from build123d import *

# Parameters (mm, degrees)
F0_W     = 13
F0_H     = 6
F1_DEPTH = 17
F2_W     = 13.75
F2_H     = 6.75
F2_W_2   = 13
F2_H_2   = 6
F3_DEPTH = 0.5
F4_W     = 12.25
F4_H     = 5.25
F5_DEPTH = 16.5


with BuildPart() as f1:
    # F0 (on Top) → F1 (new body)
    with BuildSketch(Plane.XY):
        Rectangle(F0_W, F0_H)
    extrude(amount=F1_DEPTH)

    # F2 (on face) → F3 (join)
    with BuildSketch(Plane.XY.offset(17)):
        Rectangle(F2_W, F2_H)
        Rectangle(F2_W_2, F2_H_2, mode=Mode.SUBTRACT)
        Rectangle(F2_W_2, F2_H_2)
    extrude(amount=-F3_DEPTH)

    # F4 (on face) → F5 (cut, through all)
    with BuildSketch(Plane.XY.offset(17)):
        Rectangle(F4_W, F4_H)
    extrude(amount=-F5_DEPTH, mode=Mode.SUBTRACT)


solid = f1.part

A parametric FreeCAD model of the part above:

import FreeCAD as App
import Part
import Sketcher
from FreeCAD import Vector


def add_polygon(sketch, points):
    """Adds a closed chain of lines whose ends are joined by coincident constraints."""
    first, n = sketch.GeometryCount, len(points)
    for a, b in zip(points, points[1:] + points[:1]):
        sketch.addGeometry(Part.LineSegment(App.Vector(*a, 0), App.Vector(*b, 0)), False)
    for i in range(n):
        sketch.addConstraint(Sketcher.Constraint("Coincident", first + i, 2, first + (i + 1) % n, 1))

doc = App.newDocument("Part")
body = doc.addObject("PartDesign::Body", "Body")

# Sketch on XY plane
sketch1 = doc.addObject("Sketcher::SketchObject", "Sketch")
body.addObject(sketch1)
sketch1.AttachmentSupport = (doc.XY_Plane, [""])
sketch1.MapMode = "FlatFace"
add_polygon(sketch1, [(-6, 3), (-6, -3), (6, -3), (6, 3)])  # lines 0-3
sketch1.addConstraint([
    Sketcher.Constraint("Vertical", 0),
    Sketcher.Constraint("Horizontal", 1),
    Sketcher.Constraint("Vertical", 2),
    Sketcher.Constraint("Horizontal", 3),
    Sketcher.Constraint("Symmetric", 0, 2, 2, 2, -1, 1),
    Sketcher.Constraint("DistanceX", 1, 1, 1, 2, 13.0),
    Sketcher.Constraint("DistanceY", 0, 2, 0, 1, 6.0),
])
pad1 = doc.addObject("PartDesign::Pad", "Pad")
body.addObject(pad1)
pad1.Profile = sketch1
pad1.Length = 17

# Sketch on XY plane
sketch2 = doc.addObject("Sketcher::SketchObject", "Sketch001")
body.addObject(sketch2)
sketch2.AttachmentSupport = (doc.XY_Plane, [""])
sketch2.MapMode = "FlatFace"
sketch2.AttachmentOffset = App.Placement(Vector(0, 0, 17), App.Rotation())
add_polygon(sketch2, [(-7, 3), (-7, -3), (7, -3), (7, 3)])  # lines 0-3
sketch2.addConstraint([
    Sketcher.Constraint("Vertical", 0),
    Sketcher.Constraint("Horizontal", 1),
    Sketcher.Constraint("Vertical", 2),
    Sketcher.Constraint("Horizontal", 3),
    Sketcher.Constraint("Symmetric", 0, 2, 2, 2, -1, 1),
    Sketcher.Constraint("DistanceX", 1, 1, 1, 2, 13.75),
    Sketcher.Constraint("DistanceY", 0, 2, 0, 1, 6.75),
])
pad2 = doc.addObject("PartDesign::Pad", "Pad001")
body.addObject(pad2)
pad2.Profile = sketch2
pad2.Length = 0.5
pad2.Reversed = True

# Sketch on XY plane
sketch3 = doc.addObject("Sketcher::SketchObject", "Sketch002")
body.addObject(sketch3)
sketch3.AttachmentSupport = (doc.XY_Plane, [""])
sketch3.MapMode = "FlatFace"
sketch3.AttachmentOffset = App.Placement(Vector(0, 0, 17), App.Rotation())
add_polygon(sketch3, [(-6, 3), (-6, -3), (6, -3), (6, 3)])  # lines 0-3
sketch3.addConstraint([
    Sketcher.Constraint("Vertical", 0),
    Sketcher.Constraint("Horizontal", 1),
    Sketcher.Constraint("Vertical", 2),
    Sketcher.Constraint("Horizontal", 3),
    Sketcher.Constraint("Symmetric", 0, 2, 2, 2, -1, 1),
    Sketcher.Constraint("DistanceX", 1, 1, 1, 2, 12.25),
    Sketcher.Constraint("DistanceY", 0, 2, 0, 1, 5.25),
])
pocket1 = doc.addObject("PartDesign::Pocket", "Pocket")
body.addObject(pocket1)
pocket1.Profile = sketch3
pocket1.Length = 16.5

doc.recompute()
